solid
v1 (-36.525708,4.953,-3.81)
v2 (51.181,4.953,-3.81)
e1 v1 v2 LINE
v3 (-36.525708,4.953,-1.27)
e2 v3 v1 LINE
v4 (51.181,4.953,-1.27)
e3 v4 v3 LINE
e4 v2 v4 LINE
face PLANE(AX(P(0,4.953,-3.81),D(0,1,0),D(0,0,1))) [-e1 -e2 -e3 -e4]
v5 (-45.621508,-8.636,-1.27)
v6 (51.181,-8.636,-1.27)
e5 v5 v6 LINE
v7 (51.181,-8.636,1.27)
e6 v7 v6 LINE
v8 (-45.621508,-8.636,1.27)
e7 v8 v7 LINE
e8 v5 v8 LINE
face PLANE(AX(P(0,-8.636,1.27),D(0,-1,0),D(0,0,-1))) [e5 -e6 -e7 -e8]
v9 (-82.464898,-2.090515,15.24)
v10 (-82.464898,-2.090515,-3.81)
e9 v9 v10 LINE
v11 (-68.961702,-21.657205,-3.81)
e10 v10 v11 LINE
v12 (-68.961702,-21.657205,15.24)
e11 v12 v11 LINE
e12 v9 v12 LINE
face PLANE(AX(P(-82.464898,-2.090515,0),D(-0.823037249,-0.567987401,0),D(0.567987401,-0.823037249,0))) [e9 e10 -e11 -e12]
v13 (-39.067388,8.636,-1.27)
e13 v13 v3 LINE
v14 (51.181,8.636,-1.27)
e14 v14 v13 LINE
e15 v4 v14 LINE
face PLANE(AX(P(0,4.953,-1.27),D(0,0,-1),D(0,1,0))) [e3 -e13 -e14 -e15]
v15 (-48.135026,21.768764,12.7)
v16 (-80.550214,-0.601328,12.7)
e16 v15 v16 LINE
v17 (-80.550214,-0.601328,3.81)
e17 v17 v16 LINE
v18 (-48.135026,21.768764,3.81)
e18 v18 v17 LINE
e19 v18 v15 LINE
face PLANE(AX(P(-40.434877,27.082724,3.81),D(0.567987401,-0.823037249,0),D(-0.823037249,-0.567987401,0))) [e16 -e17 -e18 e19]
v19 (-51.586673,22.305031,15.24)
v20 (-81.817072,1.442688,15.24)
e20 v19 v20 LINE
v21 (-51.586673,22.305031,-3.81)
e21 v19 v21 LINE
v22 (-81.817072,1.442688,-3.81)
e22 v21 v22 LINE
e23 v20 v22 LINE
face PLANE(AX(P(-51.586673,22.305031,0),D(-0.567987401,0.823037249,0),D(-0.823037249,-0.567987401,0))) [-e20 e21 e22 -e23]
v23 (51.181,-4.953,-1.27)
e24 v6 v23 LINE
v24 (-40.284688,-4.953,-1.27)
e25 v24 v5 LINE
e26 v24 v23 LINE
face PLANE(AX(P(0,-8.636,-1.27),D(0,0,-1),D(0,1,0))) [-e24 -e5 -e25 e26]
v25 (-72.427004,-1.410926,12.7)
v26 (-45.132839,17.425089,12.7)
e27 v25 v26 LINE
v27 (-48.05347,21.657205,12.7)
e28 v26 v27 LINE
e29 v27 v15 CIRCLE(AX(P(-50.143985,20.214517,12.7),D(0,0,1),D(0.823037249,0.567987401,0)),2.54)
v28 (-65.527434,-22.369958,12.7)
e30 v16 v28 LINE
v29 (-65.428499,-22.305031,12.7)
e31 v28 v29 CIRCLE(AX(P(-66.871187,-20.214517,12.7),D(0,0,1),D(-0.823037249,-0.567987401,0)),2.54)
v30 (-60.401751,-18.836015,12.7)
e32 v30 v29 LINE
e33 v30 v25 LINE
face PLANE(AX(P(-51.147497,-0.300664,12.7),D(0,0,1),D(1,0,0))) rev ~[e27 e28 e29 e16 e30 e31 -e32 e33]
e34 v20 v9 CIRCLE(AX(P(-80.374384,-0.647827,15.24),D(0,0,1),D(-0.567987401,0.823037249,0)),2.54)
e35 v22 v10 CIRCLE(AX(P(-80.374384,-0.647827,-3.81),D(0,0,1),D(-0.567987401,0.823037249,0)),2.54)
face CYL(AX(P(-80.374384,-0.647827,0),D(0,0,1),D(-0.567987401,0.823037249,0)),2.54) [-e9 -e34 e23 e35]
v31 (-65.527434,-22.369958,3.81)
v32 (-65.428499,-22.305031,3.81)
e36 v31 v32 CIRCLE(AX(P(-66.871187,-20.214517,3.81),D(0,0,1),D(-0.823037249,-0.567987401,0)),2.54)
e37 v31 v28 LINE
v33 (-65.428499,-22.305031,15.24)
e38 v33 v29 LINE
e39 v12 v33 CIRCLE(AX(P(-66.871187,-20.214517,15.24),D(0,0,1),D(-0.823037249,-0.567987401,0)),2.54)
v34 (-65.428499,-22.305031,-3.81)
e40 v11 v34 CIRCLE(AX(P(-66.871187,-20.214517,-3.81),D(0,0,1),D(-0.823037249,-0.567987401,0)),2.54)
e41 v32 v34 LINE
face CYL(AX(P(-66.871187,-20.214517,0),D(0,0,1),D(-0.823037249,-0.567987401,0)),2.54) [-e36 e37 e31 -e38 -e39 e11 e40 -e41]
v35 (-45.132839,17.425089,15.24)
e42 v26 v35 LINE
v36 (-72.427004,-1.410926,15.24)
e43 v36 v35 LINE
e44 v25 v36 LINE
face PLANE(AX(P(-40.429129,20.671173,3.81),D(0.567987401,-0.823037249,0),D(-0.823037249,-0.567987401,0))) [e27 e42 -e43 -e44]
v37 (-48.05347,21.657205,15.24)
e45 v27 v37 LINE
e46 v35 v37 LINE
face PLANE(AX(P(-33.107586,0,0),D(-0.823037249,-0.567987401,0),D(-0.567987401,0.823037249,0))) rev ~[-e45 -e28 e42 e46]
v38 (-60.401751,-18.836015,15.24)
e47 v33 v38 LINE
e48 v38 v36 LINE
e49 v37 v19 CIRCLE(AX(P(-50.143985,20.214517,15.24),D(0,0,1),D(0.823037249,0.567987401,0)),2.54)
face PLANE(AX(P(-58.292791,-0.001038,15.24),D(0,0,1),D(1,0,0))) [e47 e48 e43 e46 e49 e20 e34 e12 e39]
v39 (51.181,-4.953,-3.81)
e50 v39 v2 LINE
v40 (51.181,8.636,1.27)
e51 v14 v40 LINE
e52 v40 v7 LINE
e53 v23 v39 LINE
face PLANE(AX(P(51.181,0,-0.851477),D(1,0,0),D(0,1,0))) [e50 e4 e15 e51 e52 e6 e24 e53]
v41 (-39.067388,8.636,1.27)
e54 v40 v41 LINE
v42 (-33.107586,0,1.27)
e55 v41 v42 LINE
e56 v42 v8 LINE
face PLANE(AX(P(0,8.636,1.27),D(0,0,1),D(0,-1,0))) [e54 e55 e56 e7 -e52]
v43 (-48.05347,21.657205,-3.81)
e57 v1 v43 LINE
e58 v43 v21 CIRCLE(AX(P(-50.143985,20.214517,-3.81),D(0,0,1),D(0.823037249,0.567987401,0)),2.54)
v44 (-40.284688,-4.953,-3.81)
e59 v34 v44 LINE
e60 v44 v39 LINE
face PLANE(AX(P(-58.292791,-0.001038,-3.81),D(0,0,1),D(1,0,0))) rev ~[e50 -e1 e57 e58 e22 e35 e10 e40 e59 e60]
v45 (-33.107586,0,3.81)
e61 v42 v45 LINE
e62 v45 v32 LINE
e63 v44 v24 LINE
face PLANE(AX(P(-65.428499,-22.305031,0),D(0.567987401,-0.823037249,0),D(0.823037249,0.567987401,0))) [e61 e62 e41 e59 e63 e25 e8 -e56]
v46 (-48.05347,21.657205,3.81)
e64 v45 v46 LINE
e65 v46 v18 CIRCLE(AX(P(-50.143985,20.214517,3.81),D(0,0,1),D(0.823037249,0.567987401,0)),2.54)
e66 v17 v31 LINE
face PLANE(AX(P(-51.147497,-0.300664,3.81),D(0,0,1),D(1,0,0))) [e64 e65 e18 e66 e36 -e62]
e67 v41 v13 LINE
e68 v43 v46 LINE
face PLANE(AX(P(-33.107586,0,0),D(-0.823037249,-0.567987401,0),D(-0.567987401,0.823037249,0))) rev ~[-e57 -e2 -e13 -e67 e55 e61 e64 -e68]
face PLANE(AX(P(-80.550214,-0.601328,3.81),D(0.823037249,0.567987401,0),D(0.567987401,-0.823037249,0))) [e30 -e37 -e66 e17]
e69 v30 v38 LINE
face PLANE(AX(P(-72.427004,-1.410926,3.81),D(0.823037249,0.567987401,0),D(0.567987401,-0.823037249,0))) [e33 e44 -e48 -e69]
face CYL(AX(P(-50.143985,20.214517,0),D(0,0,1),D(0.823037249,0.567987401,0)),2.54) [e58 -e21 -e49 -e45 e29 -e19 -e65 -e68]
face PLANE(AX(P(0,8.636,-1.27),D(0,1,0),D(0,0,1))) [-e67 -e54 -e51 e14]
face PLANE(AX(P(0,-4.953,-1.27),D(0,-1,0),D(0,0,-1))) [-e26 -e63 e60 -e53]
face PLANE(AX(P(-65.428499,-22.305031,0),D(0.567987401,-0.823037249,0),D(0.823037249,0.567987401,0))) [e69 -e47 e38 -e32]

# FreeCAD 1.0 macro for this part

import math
import FreeCAD as App
import Part
import Sketcher

V = App.Vector
Q = App.Units.Quantity


def add_polygon(sketch, points):
    """Adds a closed chain of lines whose ends are joined by coincident constraints."""
    first, n = sketch.GeometryCount, len(points)
    for a, b in zip(points, points[1:] + points[:1]):
        sketch.addGeometry(Part.LineSegment(App.Vector(*a, 0), App.Vector(*b, 0)), False)
    for i in range(n):
        sketch.addConstraint(Sketcher.Constraint("Coincident", first + i, 2, first + (i + 1) % n, 1))

doc = App.newDocument("Part")
body = doc.addObject("PartDesign::Body", "Body")

sketch1 = body.newObject("Sketcher::SketchObject", "Sketch")
sketch1.AttachmentSupport = (doc.getObject("YZ_Plane"), [""])
sketch1.MapMode = "FlatFace"
add_polygon(sketch1, [(8.6, 1.3), (-8.6, 1.3), (-8.6, -1.3), (-5, -1.3), (-5, -3.8), (5, -3.8), (5, -1.3), (8.6, -1.3)])
sketch1.addConstraint(Sketcher.Constraint("Horizontal", 0))
sketch1.addConstraint(Sketcher.Constraint("Vertical", 1))
sketch1.addConstraint(Sketcher.Constraint("Horizontal", 2))
sketch1.addConstraint(Sketcher.Constraint("Vertical", 3))
sketch1.addConstraint(Sketcher.Constraint("Horizontal", 4))
sketch1.addConstraint(Sketcher.Constraint("Vertical", 5))
sketch1.addConstraint(Sketcher.Constraint("Horizontal", 6))
sketch1.addConstraint(Sketcher.Constraint("Vertical", 7))
sketch1.addConstraint(Sketcher.Constraint("Symmetric", 0, 2, 6, 2, -1, 1))
sketch1.addConstraint(Sketcher.Constraint("Symmetric", 2, 2, 5, 2, -2))
sketch1.addConstraint(Sketcher.Constraint("Equal", 1, 3))
sketch1.addConstraint(Sketcher.Constraint("DistanceY", 1, 2, 1, 1, Q("0.1 in")))
sketch1.addConstraint(Sketcher.Constraint("DistanceX", 0, 2, 0, 1, Q("0.68 in")))
sketch1.addConstraint(Sketcher.Constraint("DistanceX", 4, 1, 4, 2, Q("0.39 in")))
pad1 = body.newObject("PartDesign::Pad", "Pad")
pad1.Profile = sketch1
pad1.Length = Q("4.03 in")
pad1.Midplane = True

sketch2 = body.newObject("Sketcher::SketchObject", "Sketch001")
sketch2.AttachmentSupport = (doc.getObject("XY_Plane"), [""])
sketch2.MapMode = "FlatFace"
sketch2.addGeometry(Part.LineSegment(V(-65.4, -22.3, 0), V(-33.1, 0, 0)), False)
sketch2.addGeometry(Part.LineSegment(V(-33.1, 0, 0), V(-48.1, 21.7, 0)), False)
sketch2.addGeometry(Part.ArcOfCircle(Part.Circle(V(-50.1, 20.2, 0), V(0, 0, 1), 2.5), math.radians(35), math.radians(125)), False)
sketch2.addGeometry(Part.LineSegment(V(-51.6, 22.3, 0), V(-81.8, 1.4, 0)), False)
sketch2.addGeometry(Part.ArcOfCircle(Part.Circle(V(-80.4, -0.6, 0), V(0, 0, 1), 2.5), math.radians(125), math.radians(215)), False)
sketch2.addGeometry(Part.LineSegment(V(-82.5, -2.1, 0), V(-69, -21.7, 0)), False)
sketch2.addGeometry(Part.ArcOfCircle(Part.Circle(V(-66.9, -20.2, 0), V(0, 0, 1), 2.5), math.radians(-145), math.radians(-55)), False)
sketch2.addConstraint(Sketcher.Constraint("Coincident", 0, 2, 1, 1))
sketch2.addConstraint(Sketcher.Constraint("Tangent", 1, 2, 2, 1))
sketch2.addConstraint(Sketcher.Constraint("Tangent", 2, 2, 3, 1))
sketch2.addConstraint(Sketcher.Constraint("Tangent", 3, 2, 4, 1))
sketch2.addConstraint(Sketcher.Constraint("Tangent", 4, 2, 5, 1))
sketch2.addConstraint(Sketcher.Constraint("Tangent", 5, 2, 6, 1))
sketch2.addConstraint(Sketcher.Constraint("Tangent", 6, 2, 0, 1))
sketch2.addConstraint(Sketcher.Constraint("Equal", 2, 4))
sketch2.addConstraint(Sketcher.Constraint("Equal", 4, 6))
sketch2.addConstraint(Sketcher.Constraint("PointOnObject", 0, 2, -1))
sketch2.addConstraint(Sketcher.Constraint("Perpendicular", 0, 1))
sketch2.addConstraint(Sketcher.Constraint("Perpendicular", 1, 3))
sketch2.addConstraint(Sketcher.Constraint("Perpendicular", 3, 5))
sketch2.addConstraint(Sketcher.Constraint("Radius", 2, Q("0.1 in")))
sketch2.addConstraint(Sketcher.Constraint("Angle", 0, Q("34.61 deg")))
sketch2.addConstraint(Sketcher.Constraint("DistanceX", 4, 2, -1, 1, Q("82.464898 mm")))
sketch2.addConstraint(Sketcher.Constraint("DistanceX", 6, 2, -1, 1, Q("65.428499 mm")))
sketch2.addConstraint(Sketcher.Constraint("DistanceX", 4, 3, 2, 3, Q("30.230399 mm")))
pad2 = body.newObject("PartDesign::Pad", "Pad001")
pad2.Profile = sketch2
pad2.Length = Q("0.6 in")

sketch3 = body.newObject("Sketcher::SketchObject", "Sketch002")
sketch3.AttachmentSupport = (doc.getObject("XY_Plane"), [""])
sketch3.MapMode = "FlatFace"
sketch3.addGeometry(Part.LineSegment(V(-65.4, -22.3, 0), V(-33.1, 0, 0)), False)
sketch3.addGeometry(Part.LineSegment(V(-33.1, 0, 0), V(-48.1, 21.7, 0)), False)
sketch3.addGeometry(Part.ArcOfCircle(Part.Circle(V(-50.1, 20.2, 0), V(0, 0, 1), 2.5), math.radians(35), math.radians(125)), False)
sketch3.addGeometry(Part.LineSegment(V(-51.6, 22.3, 0), V(-81.8, 1.4, 0)), False)
sketch3.addGeometry(Part.ArcOfCircle(Part.Circle(V(-80.4, -0.6, 0), V(0, 0, 1), 2.5), math.radians(125), math.radians(215)), False)
sketch3.addGeometry(Part.LineSegment(V(-82.5, -2.1, 0), V(-69, -21.7, 0)), False)
sketch3.addGeometry(Part.ArcOfCircle(Part.Circle(V(-66.9, -20.2, 0), V(0, 0, 1), 2.5), math.radians(-145), math.radians(-55)), False)
sketch3.addConstraint(Sketcher.Constraint("Coincident", 0, 2, 1, 1))
sketch3.addConstraint(Sketcher.Constraint("Tangent", 1, 2, 2, 1))
sketch3.addConstraint(Sketcher.Constraint("Tangent", 2, 2, 3, 1))
sketch3.addConstraint(Sketcher.Constraint("Tangent", 3, 2, 4, 1))
sketch3.addConstraint(Sketcher.Constraint("Tangent", 4, 2, 5, 1))
sketch3.addConstraint(Sketcher.Constraint("Tangent", 5, 2, 6, 1))
sketch3.addConstraint(Sketcher.Constraint("Tangent", 6, 2, 0, 1))
sketch3.addConstraint(Sketcher.Constraint("Equal", 2, 4))
sketch3.addConstraint(Sketcher.Constraint("Equal", 4, 6))
sketch3.addConstraint(Sketcher.Constraint("PointOnObject", 0, 2, -1))
sketch3.addConstraint(Sketcher.Constraint("Perpendicular", 0, 1))
sketch3.addConstraint(Sketcher.Constraint("Perpendicular", 1, 3))
sketch3.addConstraint(Sketcher.Constraint("Perpendicular", 3, 5))
sketch3.addConstraint(Sketcher.Constraint("Radius", 2, Q("0.1 in")))
sketch3.addConstraint(Sketcher.Constraint("Angle", 0, Q("34.61 deg")))
sketch3.addConstraint(Sketcher.Constraint("DistanceX", 4, 2, -1, 1, Q("82.464898 mm")))
sketch3.addConstraint(Sketcher.Constraint("DistanceX", 6, 2, -1, 1, Q("65.428499 mm")))
sketch3.addConstraint(Sketcher.Constraint("DistanceX", 4, 3, 2, 3, Q("30.230399 mm")))
pad3 = body.newObject("PartDesign::Pad", "Pad002")
pad3.Profile = sketch3
pad3.Length = Q("0.15 in")
pad3.Reversed = True

sketch4 = body.newObject("Sketcher::SketchObject", "Sketch003")
sketch4.AttachmentSupport = (doc.getObject("XY_Plane"), [""])
sketch4.MapMode = "FlatFace"
sketch4.AttachmentOffset = App.Placement(V(0, 0, 0.15 * 25.4), App.Rotation())
add_polygon(sketch4, [(-40, 27), (-81, -1), (-62, -28), (-22, 0)])
sketch4.addConstraint(Sketcher.Constraint("PointOnObject", 2, 2, -1))
sketch4.addConstraint(Sketcher.Constraint("Perpendicular", 0, 1))
sketch4.addConstraint(Sketcher.Constraint("Perpendicular", 1, 2))
sketch4.addConstraint(Sketcher.Constraint("Perpendicular", 2, 3))
sketch4.addConstraint(Sketcher.Constraint("Angle", 0, Q("-145.39 deg")))
sketch4.addConstraint(Sketcher.Constraint("Distance", 0, Q("48.740609 mm")))
sketch4.addConstraint(Sketcher.Constraint("Distance", 1, Q("32.905831 mm")))
sketch4.addConstraint(Sketcher.Constraint("DistanceX", 2, 2, -1, 1, Q("21.744779 mm")))
pocket1 = body.newObject("PartDesign::Pocket", "Pocket")
pocket1.Profile = sketch4
pocket1.Length = Q("0.35 in")
pocket1.Reversed = True

sketch5 = body.newObject("Sketcher::SketchObject", "Sketch004")
sketch5.AttachmentSupport = (doc.getObject("XY_Plane"), [""])
sketch5.MapMode = "FlatFace"
sketch5.AttachmentOffset = App.Placement(V(0, 0, 0.15 * 25.4), App.Rotation())
add_polygon(sketch5, [(-40, 21), (-72, -1), (-58, -23), (-26, -1)])
sketch5.addConstraint(Sketcher.Constraint("Perpendicular", 0, 1))
sketch5.addConstraint(Sketcher.Constraint("Perpendicular", 1, 2))
sketch5.addConstraint(Sketcher.Constraint("Perpendicular", 2, 3))
sketch5.addConstraint(Sketcher.Constraint("Angle", 0, Q("-145.39 deg")))
sketch5.addConstraint(Sketcher.Constraint("DistanceY", 1, 2, 0, 2, Q("0.8375 in")))
sketch5.addConstraint(Sketcher.Constraint("DistanceY", 1, 2, 2, 2, Q("22.082099 mm")))
sketch5.addConstraint(Sketcher.Constraint("DistanceX", 1, 2, -1, 1, Q("57.746608 mm")))
sketch5.addConstraint(Sketcher.Constraint("DistanceY", 0, 2, -1, 1, Q("1.410926 mm")))
pocket2 = body.newObject("PartDesign::Pocket", "Pocket001")
pocket2.Profile = sketch5
pocket2.Length = Q("0.81 in")
pocket2.Reversed = True

doc.recompute()
